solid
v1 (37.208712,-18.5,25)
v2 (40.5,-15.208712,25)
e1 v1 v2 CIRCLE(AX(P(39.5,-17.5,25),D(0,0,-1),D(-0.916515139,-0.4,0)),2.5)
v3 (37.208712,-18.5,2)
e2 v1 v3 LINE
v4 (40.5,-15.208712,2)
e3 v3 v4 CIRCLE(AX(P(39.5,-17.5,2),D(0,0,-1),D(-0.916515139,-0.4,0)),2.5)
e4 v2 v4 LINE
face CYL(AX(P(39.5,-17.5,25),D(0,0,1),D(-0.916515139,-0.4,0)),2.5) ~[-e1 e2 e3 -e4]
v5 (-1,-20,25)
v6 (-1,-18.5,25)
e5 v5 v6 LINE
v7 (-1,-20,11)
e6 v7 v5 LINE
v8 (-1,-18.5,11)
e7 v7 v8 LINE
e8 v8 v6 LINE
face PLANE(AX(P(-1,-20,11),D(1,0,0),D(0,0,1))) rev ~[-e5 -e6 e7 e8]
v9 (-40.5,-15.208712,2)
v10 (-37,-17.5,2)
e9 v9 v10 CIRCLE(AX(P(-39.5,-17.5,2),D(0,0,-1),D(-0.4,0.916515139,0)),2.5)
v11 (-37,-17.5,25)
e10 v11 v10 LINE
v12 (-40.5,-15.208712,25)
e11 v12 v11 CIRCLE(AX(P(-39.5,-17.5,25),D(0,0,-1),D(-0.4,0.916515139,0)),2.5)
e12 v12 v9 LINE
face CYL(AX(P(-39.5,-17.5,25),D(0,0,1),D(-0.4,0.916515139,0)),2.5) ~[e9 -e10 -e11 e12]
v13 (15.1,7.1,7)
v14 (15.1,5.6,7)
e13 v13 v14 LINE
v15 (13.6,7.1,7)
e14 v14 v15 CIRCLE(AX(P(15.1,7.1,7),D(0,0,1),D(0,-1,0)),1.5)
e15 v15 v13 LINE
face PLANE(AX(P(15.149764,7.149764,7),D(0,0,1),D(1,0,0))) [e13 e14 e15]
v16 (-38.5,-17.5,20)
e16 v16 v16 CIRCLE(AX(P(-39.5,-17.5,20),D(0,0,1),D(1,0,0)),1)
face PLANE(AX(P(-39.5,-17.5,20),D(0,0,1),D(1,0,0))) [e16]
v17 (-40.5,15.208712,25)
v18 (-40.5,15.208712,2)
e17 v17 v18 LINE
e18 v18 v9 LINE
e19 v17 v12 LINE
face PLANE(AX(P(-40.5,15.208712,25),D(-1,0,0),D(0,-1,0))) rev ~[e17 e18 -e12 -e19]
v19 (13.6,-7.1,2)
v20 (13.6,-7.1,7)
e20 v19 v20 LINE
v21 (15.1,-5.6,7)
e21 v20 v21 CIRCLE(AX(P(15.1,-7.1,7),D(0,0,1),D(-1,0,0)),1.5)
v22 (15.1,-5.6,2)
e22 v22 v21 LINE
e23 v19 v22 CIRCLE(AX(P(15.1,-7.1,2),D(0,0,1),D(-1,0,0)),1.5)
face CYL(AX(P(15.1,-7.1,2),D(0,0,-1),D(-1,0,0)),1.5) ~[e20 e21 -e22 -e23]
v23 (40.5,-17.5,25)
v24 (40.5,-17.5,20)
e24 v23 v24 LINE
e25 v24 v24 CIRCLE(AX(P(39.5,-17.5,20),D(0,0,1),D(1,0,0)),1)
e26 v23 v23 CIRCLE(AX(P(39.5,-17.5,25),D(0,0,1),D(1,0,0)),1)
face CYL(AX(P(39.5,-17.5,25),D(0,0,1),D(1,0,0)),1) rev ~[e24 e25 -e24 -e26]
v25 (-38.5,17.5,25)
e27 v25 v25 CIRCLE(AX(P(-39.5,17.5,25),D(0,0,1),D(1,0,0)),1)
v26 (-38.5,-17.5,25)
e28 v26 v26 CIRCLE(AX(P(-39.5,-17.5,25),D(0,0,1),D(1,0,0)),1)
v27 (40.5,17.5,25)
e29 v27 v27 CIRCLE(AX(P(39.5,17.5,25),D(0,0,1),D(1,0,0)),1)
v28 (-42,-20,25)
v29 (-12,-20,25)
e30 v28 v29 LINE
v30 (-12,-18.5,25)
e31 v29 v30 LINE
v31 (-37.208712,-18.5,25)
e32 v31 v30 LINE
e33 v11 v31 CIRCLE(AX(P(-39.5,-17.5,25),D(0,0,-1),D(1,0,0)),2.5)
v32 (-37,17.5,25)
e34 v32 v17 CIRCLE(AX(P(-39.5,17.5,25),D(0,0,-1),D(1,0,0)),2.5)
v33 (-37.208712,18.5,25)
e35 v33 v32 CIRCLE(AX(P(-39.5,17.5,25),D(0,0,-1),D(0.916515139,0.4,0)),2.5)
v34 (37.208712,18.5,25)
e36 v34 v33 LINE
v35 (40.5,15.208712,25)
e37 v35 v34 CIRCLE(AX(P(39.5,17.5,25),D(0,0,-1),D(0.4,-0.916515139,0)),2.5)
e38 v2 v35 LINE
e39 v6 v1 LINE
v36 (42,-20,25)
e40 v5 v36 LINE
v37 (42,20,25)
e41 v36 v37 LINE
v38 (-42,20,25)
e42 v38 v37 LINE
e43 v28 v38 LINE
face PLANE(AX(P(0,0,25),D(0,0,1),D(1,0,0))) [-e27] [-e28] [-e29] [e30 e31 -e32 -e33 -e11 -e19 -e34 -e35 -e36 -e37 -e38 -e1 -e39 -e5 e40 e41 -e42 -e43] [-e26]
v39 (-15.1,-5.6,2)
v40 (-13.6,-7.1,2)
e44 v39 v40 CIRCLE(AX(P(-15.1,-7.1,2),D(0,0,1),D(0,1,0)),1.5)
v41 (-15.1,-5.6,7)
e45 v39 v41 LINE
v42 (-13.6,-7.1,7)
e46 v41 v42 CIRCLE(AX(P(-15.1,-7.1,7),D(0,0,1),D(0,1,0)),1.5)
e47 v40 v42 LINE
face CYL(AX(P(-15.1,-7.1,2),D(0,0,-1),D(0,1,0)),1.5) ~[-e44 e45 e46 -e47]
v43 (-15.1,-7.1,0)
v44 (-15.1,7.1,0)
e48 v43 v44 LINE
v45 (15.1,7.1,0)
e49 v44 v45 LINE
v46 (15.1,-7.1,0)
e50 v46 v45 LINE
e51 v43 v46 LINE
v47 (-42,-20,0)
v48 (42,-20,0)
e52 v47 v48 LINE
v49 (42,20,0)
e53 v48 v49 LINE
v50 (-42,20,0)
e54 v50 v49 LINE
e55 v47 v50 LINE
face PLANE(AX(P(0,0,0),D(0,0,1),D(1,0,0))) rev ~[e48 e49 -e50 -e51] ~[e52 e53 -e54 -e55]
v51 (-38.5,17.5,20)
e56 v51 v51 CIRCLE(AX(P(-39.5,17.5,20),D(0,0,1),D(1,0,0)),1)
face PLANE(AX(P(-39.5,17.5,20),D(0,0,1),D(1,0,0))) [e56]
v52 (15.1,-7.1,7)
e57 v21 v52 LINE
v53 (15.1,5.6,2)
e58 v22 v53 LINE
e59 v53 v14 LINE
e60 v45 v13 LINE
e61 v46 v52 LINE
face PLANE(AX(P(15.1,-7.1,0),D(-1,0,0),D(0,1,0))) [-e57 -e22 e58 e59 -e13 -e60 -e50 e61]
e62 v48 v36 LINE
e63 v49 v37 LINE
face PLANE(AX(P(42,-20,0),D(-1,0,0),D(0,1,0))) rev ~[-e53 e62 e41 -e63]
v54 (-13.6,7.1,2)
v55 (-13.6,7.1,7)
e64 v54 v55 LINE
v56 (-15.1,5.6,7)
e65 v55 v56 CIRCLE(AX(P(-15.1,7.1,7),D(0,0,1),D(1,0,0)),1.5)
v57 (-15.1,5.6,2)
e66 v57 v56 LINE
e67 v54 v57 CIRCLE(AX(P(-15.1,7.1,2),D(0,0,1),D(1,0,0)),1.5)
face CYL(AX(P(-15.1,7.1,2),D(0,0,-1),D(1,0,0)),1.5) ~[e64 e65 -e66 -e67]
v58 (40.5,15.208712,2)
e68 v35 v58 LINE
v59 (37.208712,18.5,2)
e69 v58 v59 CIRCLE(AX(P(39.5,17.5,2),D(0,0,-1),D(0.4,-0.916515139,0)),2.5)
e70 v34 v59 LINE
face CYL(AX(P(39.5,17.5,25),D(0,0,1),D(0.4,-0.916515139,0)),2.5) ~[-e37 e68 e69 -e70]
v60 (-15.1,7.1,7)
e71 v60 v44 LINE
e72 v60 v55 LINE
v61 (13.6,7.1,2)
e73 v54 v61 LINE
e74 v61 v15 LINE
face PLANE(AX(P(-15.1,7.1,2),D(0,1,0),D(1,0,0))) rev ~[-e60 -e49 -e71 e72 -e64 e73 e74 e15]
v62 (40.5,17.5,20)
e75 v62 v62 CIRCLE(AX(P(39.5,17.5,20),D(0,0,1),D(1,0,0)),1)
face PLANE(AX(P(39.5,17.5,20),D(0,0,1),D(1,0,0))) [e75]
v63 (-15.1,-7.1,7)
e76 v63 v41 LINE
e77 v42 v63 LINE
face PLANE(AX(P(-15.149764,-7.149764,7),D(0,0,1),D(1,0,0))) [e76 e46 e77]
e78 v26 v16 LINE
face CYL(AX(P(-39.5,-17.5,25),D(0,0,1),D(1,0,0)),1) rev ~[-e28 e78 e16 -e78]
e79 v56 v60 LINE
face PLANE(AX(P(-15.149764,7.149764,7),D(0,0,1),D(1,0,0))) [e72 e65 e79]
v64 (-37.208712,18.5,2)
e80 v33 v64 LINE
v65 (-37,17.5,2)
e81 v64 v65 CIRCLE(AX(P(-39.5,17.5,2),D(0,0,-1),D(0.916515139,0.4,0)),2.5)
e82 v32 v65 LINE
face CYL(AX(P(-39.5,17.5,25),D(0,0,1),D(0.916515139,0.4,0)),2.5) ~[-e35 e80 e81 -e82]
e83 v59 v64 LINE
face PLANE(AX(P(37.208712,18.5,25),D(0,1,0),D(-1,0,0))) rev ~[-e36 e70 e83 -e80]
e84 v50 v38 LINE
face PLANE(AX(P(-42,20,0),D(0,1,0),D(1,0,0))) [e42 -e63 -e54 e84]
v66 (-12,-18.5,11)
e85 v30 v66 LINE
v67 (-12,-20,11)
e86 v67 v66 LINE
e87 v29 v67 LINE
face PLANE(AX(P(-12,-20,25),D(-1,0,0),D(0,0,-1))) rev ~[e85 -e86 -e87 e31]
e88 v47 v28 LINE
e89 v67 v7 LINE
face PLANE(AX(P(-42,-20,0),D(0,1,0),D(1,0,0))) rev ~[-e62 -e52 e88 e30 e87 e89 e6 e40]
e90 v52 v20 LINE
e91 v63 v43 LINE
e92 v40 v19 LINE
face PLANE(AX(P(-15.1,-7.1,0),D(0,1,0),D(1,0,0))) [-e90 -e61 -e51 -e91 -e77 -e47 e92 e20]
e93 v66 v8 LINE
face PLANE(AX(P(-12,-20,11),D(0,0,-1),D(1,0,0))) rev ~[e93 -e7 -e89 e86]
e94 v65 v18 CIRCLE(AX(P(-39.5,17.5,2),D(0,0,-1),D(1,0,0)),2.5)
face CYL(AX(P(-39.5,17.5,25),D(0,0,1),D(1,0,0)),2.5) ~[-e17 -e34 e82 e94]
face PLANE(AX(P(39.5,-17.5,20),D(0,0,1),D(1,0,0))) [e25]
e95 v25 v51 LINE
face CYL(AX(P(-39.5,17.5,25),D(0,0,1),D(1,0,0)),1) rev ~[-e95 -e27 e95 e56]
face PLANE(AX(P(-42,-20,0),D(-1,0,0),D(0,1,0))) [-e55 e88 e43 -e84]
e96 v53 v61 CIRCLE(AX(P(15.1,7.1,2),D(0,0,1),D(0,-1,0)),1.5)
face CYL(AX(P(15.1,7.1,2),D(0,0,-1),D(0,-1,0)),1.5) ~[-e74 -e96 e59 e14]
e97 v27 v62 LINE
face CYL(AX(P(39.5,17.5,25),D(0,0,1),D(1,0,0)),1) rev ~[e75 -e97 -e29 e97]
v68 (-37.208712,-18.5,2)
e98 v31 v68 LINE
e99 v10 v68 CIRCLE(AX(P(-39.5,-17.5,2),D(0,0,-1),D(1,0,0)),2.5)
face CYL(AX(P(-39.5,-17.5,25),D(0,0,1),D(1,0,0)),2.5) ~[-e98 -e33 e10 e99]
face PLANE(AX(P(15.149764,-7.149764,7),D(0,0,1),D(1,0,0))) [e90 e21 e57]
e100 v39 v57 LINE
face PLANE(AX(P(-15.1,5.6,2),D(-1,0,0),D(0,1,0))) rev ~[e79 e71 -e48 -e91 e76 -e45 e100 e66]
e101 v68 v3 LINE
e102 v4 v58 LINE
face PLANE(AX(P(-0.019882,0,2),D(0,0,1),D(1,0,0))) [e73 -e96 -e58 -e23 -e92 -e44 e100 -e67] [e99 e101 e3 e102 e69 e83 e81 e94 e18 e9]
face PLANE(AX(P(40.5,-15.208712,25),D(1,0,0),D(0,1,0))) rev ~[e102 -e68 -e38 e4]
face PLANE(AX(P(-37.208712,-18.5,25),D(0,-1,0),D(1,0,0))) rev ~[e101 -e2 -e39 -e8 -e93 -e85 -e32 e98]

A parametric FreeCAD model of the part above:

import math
import FreeCAD as App
import Part
import Sketcher
Q = App.Units.Quantity

doc = App.newDocument("Part")
body = doc.addObject("PartDesign::Body", "Body")

sketch1 = body.newObject("Sketcher::SketchObject", "Sketch")
sketch1.AttachmentSupport = (doc.getObject("XY_Plane"), [""])
sketch1.MapMode = "FlatFace"
sketch1.addGeometry(Part.LineSegment(App.Vector(-42, 20, 0), App.Vector(-42, -20, 0)), False)
sketch1.addGeometry(Part.LineSegment(App.Vector(-42, -20, 0), App.Vector(42, -20, 0)), False)
sketch1.addGeometry(Part.LineSegment(App.Vector(42, -20, 0), App.Vector(42, 20, 0)), False)
sketch1.addGeometry(Part.LineSegment(App.Vector(42, 20, 0), App.Vector(-42, 20, 0)), False)
sketch1.addGeometry(Part.LineSegment(App.Vector(15, -7, 0), App.Vector(-15, -7, 0)), False)
sketch1.addGeometry(Part.LineSegment(App.Vector(-15, -7, 0), App.Vector(-15, 7, 0)), False)
sketch1.addGeometry(Part.LineSegment(App.Vector(-15, 7, 0), App.Vector(15, 7, 0)), False)
sketch1.addGeometry(Part.LineSegment(App.Vector(15, 7, 0), App.Vector(15, -7, 0)), False)
sketch1.addConstraint(Sketcher.Constraint("Coincident", 0, 2, 1, 1))
sketch1.addConstraint(Sketcher.Constraint("Coincident", 1, 2, 2, 1))
sketch1.addConstraint(Sketcher.Constraint("Coincident", 2, 2, 3, 1))
sketch1.addConstraint(Sketcher.Constraint("Coincident", 3, 2, 0, 1))
sketch1.addConstraint(Sketcher.Constraint("Coincident", 4, 2, 5, 1))
sketch1.addConstraint(Sketcher.Constraint("Coincident", 5, 2, 6, 1))
sketch1.addConstraint(Sketcher.Constraint("Coincident", 6, 2, 7, 1))
sketch1.addConstraint(Sketcher.Constraint("Coincident", 7, 2, 4, 1))
sketch1.addConstraint(Sketcher.Constraint("Vertical", 0))
sketch1.addConstraint(Sketcher.Constraint("Horizontal", 1))
sketch1.addConstraint(Sketcher.Constraint("Vertical", 2))
sketch1.addConstraint(Sketcher.Constraint("Horizontal", 3))
sketch1.addConstraint(Sketcher.Constraint("Horizontal", 4))
sketch1.addConstraint(Sketcher.Constraint("Vertical", 5))
sketch1.addConstraint(Sketcher.Constraint("Horizontal", 6))
sketch1.addConstraint(Sketcher.Constraint("Vertical", 7))
sketch1.addConstraint(Sketcher.Constraint("Symmetric", 0, 2, 2, 2, -1, 1))
sketch1.addConstraint(Sketcher.Constraint("Symmetric", 4, 2, 6, 2, -1, 1))
sketch1.addConstraint(Sketcher.Constraint("DistanceX", 1, 1, 1, 2, Q("84 mm")))
sketch1.addConstraint(Sketcher.Constraint("DistanceY", 0, 2, 0, 1, Q("40 mm")))
sketch1.addConstraint(Sketcher.Constraint("DistanceX", 4, 2, 4, 1, Q("30.2 mm")))
sketch1.addConstraint(Sketcher.Constraint("DistanceY", 5, 1, 5, 2, Q("14.2 mm")))
pad1 = body.newObject("PartDesign::Pad", "Pad")
pad1.Profile = sketch1
pad1.Length = 25

sketch2 = body.newObject("Sketcher::SketchObject", "Sketch001")
sketch2.AttachmentSupport = (doc.getObject("XY_Plane"), [""])
sketch2.MapMode = "FlatFace"
sketch2.AttachmentOffset = App.Placement(App.Vector(0, 0, 25), App.Rotation())
sketch2.addGeometry(Part.LineSegment(App.Vector(-37.2, -18.5, 0), App.Vector(37.2, -18.5, 0)), False)
sketch2.addGeometry(Part.ArcOfCircle(Part.Circle(App.Vector(39.5, -17.5, 0), App.Vector(0, 0, 1), 2.5), math.radians(66), math.radians(204)), False)
sketch2.addGeometry(Part.LineSegment(App.Vector(40.5, -15.2, 0), App.Vector(40.5, 15.2, 0)), False)
sketch2.addGeometry(Part.ArcOfCircle(Part.Circle(App.Vector(39.5, 17.5, 0), App.Vector(0, 0, 1), 2.5), math.radians(156), math.radians(294)), False)
sketch2.addGeometry(Part.LineSegment(App.Vector(37.2, 18.5, 0), App.Vector(-37.2, 18.5, 0)), False)
sketch2.addGeometry(Part.ArcOfCircle(Part.Circle(App.Vector(-39.5, 17.5, 0), App.Vector(0, 0, 1), 2.5), math.radians(0), math.radians(24)), False)
sketch2.addGeometry(Part.ArcOfCircle(Part.Circle(App.Vector(-39.5, 17.5, 0), App.Vector(0, 0, 1), 2.5), math.radians(-114), math.radians(0)), False)
sketch2.addGeometry(Part.LineSegment(App.Vector(-40.5, 15.2, 0), App.Vector(-40.5, -15.2, 0)), False)
sketch2.addGeometry(Part.ArcOfCircle(Part.Circle(App.Vector(-39.5, -17.5, 0), App.Vector(0, 0, 1), 2.5), math.radians(0), math.radians(114)), False)
sketch2.addGeometry(Part.ArcOfCircle(Part.Circle(App.Vector(-39.5, -17.5, 0), App.Vector(0, 0, 1), 2.5), math.radians(-24), math.radians(0)), False)
sketch2.addGeometry(Part.LineSegment(App.Vector(15.1, -7.1, 0), App.Vector(-15.1, -7.1, 0)), False)
sketch2.addGeometry(Part.LineSegment(App.Vector(-15.1, -7.1, 0), App.Vector(-15.1, 7.1, 0)), False)
sketch2.addGeometry(Part.LineSegment(App.Vector(-15.1, 7.1, 0), App.Vector(15.1, 7.1, 0)), False)
sketch2.addGeometry(Part.LineSegment(App.Vector(15.1, 7.1, 0), App.Vector(15.1, -7.1, 0)), False)
sketch2.addConstraint(Sketcher.Constraint("Coincident", 0, 2, 1, 2))
sketch2.addConstraint(Sketcher.Constraint("Coincident", 1, 1, 2, 1))
sketch2.addConstraint(Sketcher.Constraint("Coincident", 2, 2, 3, 2))
sketch2.addConstraint(Sketcher.Constraint("Coincident", 3, 1, 4, 1))
sketch2.addConstraint(Sketcher.Constraint("Coincident", 4, 2, 5, 2))
sketch2.addConstraint(Sketcher.Constraint("Tangent", 5, 1, 6, 2))
sketch2.addConstraint(Sketcher.Constraint("Coincident", 6, 1, 7, 1))
sketch2.addConstraint(Sketcher.Constraint("Coincident", 7, 2, 8, 2))
sketch2.addConstraint(Sketcher.Constraint("Tangent", 8, 1, 9, 2))
sketch2.addConstraint(Sketcher.Constraint("Coincident", 9, 1, 0, 1))
sketch2.addConstraint(Sketcher.Constraint("Coincident", 10, 2, 11, 1))
sketch2.addConstraint(Sketcher.Constraint("Coincident", 11, 2, 12, 1))
sketch2.addConstraint(Sketcher.Constraint("Coincident", 12, 2, 13, 1))
sketch2.addConstraint(Sketcher.Constraint("Coincident", 13, 2, 10, 1))
sketch2.addConstraint(Sketcher.Constraint("Horizontal", 0))
sketch2.addConstraint(Sketcher.Constraint("Vertical", 2))
sketch2.addConstraint(Sketcher.Constraint("Horizontal", 4))
sketch2.addConstraint(Sketcher.Constraint("Vertical", 7))
sketch2.addConstraint(Sketcher.Constraint("Horizontal", 10))
sketch2.addConstraint(Sketcher.Constraint("Vertical", 11))
sketch2.addConstraint(Sketcher.Constraint("Horizontal", 12))
sketch2.addConstraint(Sketcher.Constraint("Vertical", 13))
sketch2.addConstraint(Sketcher.Constraint("Equal", 1, 3))
sketch2.addConstraint(Sketcher.Constraint("Equal", 3, 5))
sketch2.addConstraint(Sketcher.Constraint("Equal", 5, 6))
sketch2.addConstraint(Sketcher.Constraint("Equal", 6, 8))
sketch2.addConstraint(Sketcher.Constraint("Equal", 8, 9))
sketch2.addConstraint(Sketcher.Constraint("Symmetric", 1, 3, 5, 3, -1, 1))
sketch2.addConstraint(Sketcher.Constraint("Symmetric", 3, 3, 8, 3, -1, 1))
sketch2.addConstraint(Sketcher.Constraint("Symmetric", 10, 2, 12, 2, -1, 1))
sketch2.addConstraint(Sketcher.Constraint("Symmetric", 3, 3, 5, 3, -2))
sketch2.addConstraint(Sketcher.Constraint("Horizontal", 6, 3, 5, 1))
sketch2.addConstraint(Sketcher.Constraint("Horizontal", 2, 2, 6, 1))
sketch2.addConstraint(Sketcher.Constraint("Horizontal", 9, 3, 8, 1))
sketch2.addConstraint(Sketcher.Constraint("Vertical", 0, 2, 3, 1))
sketch2.addConstraint(Sketcher.Constraint("Radius", 1, Q("2.5 mm")))
sketch2.addConstraint(Sketcher.Constraint("DistanceX", 10, 2, 10, 1, Q("30.2 mm")))
sketch2.addConstraint(Sketcher.Constraint("DistanceY", 11, 1, 11, 2, Q("14.2 mm")))
sketch2.addConstraint(Sketcher.Constraint("DistanceX", 5, 1, -1, 1, Q("37 mm")))
sketch2.addConstraint(Sketcher.Constraint("DistanceY", 1, 3, 3, 3, Q("35 mm")))
sketch2.addConstraint(Sketcher.Constraint("DistanceY", 0, 2, 1, 3, Q("1 mm")))
sketch2.addConstraint(Sketcher.Constraint("DistanceX", 1, 3, 1, 1, Q("1 mm")))
pocket1 = body.newObject("PartDesign::Pocket", "Pocket")
pocket1.Profile = sketch2
pocket1.Length = 23

sketch3 = body.newObject("Sketcher::SketchObject", "Sketch002")
sketch3.AttachmentSupport = (doc.getObject("XY_Plane"), [""])
sketch3.MapMode = "FlatFace"
sketch3.AttachmentOffset = App.Placement(App.Vector(0, 0, 2), App.Rotation())
sketch3.addGeometry(Part.LineSegment(App.Vector(-15.1, 7.1, 0), App.Vector(-13.6, 7.1, 0)), False)
sketch3.addGeometry(Part.ArcOfCircle(Part.Circle(App.Vector(-15.1, 7.1, 0), App.Vector(0, 0, 1), 1.5), math.radians(0), math.radians(270)), False)
sketch3.addGeometry(Part.LineSegment(App.Vector(-15.1, 5.6, 0), App.Vector(-15.1, 7.1, 0)), False)
sketch3.addGeometry(Part.LineSegment(App.Vector(-15.1, -7.1, 0), App.Vector(-15.1, -5.6, 0)), False)
sketch3.addGeometry(Part.ArcOfCircle(Part.Circle(App.Vector(-15.1, -7.1, 0), App.Vector(0, 0, 1), 1.5), math.radians(90), math.radians(360)), False)
sketch3.addGeometry(Part.LineSegment(App.Vector(-13.6, -7.1, 0), App.Vector(-15.1, -7.1, 0)), False)
sketch3.addGeometry(Part.ArcOfCircle(Part.Circle(App.Vector(15.1, -7.1, 0), App.Vector(0, 0, 1), 1.5), math.radians(180), math.radians(450)), False)
sketch3.addGeometry(Part.LineSegment(App.Vector(15.1, -5.6, 0), App.Vector(15.1, -7.1, 0)), False)
sketch3.addGeometry(Part.LineSegment(App.Vector(15.1, -7.1, 0), App.Vector(13.6, -7.1, 0)), False)
sketch3.addGeometry(Part.ArcOfCircle(Part.Circle(App.Vector(15.1, 7.1, 0), App.Vector(0, 0, 1), 1.5), math.radians(-90), math.radians(180)), False)
sketch3.addGeometry(Part.LineSegment(App.Vector(13.6, 7.1, 0), App.Vector(15.1, 7.1, 0)), False)
sketch3.addGeometry(Part.LineSegment(App.Vector(15.1, 7.1, 0), App.Vector(15.1, 5.6, 0)), False)
sketch3.addConstraint(Sketcher.Constraint("Coincident", 0, 2, 1, 1))
sketch3.addConstraint(Sketcher.Constraint("Coincident", 1, 2, 2, 1))
sketch3.addConstraint(Sketcher.Constraint("Coincident", 2, 2, 0, 1))
sketch3.addConstraint(Sketcher.Constraint("Coincident", 3, 2, 4, 1))
sketch3.addConstraint(Sketcher.Constraint("Coincident", 4, 2, 5, 1))
sketch3.addConstraint(Sketcher.Constraint("Coincident", 5, 2, 3, 1))
sketch3.addConstraint(Sketcher.Constraint("Coincident", 6, 2, 7, 1))
sketch3.addConstraint(Sketcher.Constraint("Coincident", 7, 2, 8, 1))
sketch3.addConstraint(Sketcher.Constraint("Coincident", 8, 2, 6, 1))
sketch3.addConstraint(Sketcher.Constraint("Coincident", 9, 2, 10, 1))
sketch3.addConstraint(Sketcher.Constraint("Coincident", 10, 2, 11, 1))
sketch3.addConstraint(Sketcher.Constraint("Coincident", 11, 2, 9, 1))
sketch3.addConstraint(Sketcher.Constraint("Horizontal", 0))
sketch3.addConstraint(Sketcher.Constraint("Vertical", 2))
sketch3.addConstraint(Sketcher.Constraint("Vertical", 3))
sketch3.addConstraint(Sketcher.Constraint("Horizontal", 5))
sketch3.addConstraint(Sketcher.Constraint("Vertical", 7))
sketch3.addConstraint(Sketcher.Constraint("Horizontal", 8))
sketch3.addConstraint(Sketcher.Constraint("Horizontal", 10))
sketch3.addConstraint(Sketcher.Constraint("Vertical", 11))
sketch3.addConstraint(Sketcher.Constraint("Coincident", 2, 2, 1, 3))
sketch3.addConstraint(Sketcher.Constraint("Coincident", 5, 2, 4, 3))
sketch3.addConstraint(Sketcher.Constraint("Coincident", 7, 2, 6, 3))
sketch3.addConstraint(Sketcher.Constraint("Coincident", 10, 2, 9, 3))
sketch3.addConstraint(Sketcher.Constraint("Equal", 1, 4))
sketch3.addConstraint(Sketcher.Constraint("Equal", 4, 6))
sketch3.addConstraint(Sketcher.Constraint("Equal", 6, 9))
sketch3.addConstraint(Sketcher.Constraint("Symmetric", 1, 3, 6, 3, -1, 1))
sketch3.addConstraint(Sketcher.Constraint("Symmetric", 4, 3, 9, 3, -1, 1))
sketch3.addConstraint(Sketcher.Constraint("Symmetric", 4, 3, 6, 3, -2))
sketch3.addConstraint(Sketcher.Constraint("Radius", 1, Q("1.5 mm")))
sketch3.addConstraint(Sketcher.Constraint("DistanceX", 1, 3, -1, 1, Q("15.1 mm")))
sketch3.addConstraint(Sketcher.Constraint("DistanceY", -1, 1, 1, 3, Q("7.1 mm")))
pad2 = body.newObject("PartDesign::Pad", "Pad001")
pad2.Profile = sketch3
pad2.Length = 5

sketch4 = body.newObject("Sketcher::SketchObject", "Sketch003")
sketch4.AttachmentSupport = (doc.getObject("XY_Plane"), [""])
sketch4.MapMode = "FlatFace"
sketch4.AttachmentOffset = App.Placement(App.Vector(0, 0, 25), App.Rotation())
sketch4.addGeometry(Part.Circle(App.Vector(-39.5, 17.5, 0), App.Vector(0, 0, 1), 1), False)
sketch4.addGeometry(Part.Circle(App.Vector(39.5, 17.5, 0), App.Vector(0, 0, 1), 1), False)
sketch4.addGeometry(Part.Circle(App.Vector(39.5, -17.5, 0), App.Vector(0, 0, 1), 1), False)
sketch4.addGeometry(Part.Circle(App.Vector(-39.5, -17.5, 0), App.Vector(0, 0, 1), 1), False)
sketch4.addConstraint(Sketcher.Constraint("Equal", 0, 1))
sketch4.addConstraint(Sketcher.Constraint("Equal", 1, 2))
sketch4.addConstraint(Sketcher.Constraint("Equal", 2, 3))
sketch4.addConstraint(Sketcher.Constraint("Symmetric", 0, 3, 2, 3, -1, 1))
sketch4.addConstraint(Sketcher.Constraint("Symmetric", 1, 3, 3, 3, -1, 1))
sketch4.addConstraint(Sketcher.Constraint("Symmetric", 0, 3, 1, 3, -2))
sketch4.addConstraint(Sketcher.Constraint("Diameter", 0, Q("2 mm")))
sketch4.addConstraint(Sketcher.Constraint("DistanceX", 0, 3, 1, 3, Q("79 mm")))
sketch4.addConstraint(Sketcher.Constraint("DistanceY", 2, 3, 1, 3, Q("35 mm")))
pocket2 = body.newObject("PartDesign::Pocket", "Pocket001")
pocket2.Profile = sketch4
pocket2.Length = 5

sketch5 = body.newObject("Sketcher::SketchObject", "Sketch004")
sketch5.AttachmentSupport = (doc.getObject("XZ_Plane"), [""])
sketch5.MapMode = "FlatFace"
sketch5.AttachmentOffset = App.Placement(App.Vector(0, 0, 20), App.Rotation())
sketch5.addGeometry(Part.LineSegment(App.Vector(-12, 11, 0), App.Vector(-1, 11, 0)), False)
sketch5.addGeometry(Part.LineSegment(App.Vector(-1, 11, 0), App.Vector(-1, 25, 0)), False)
sketch5.addGeometry(Part.LineSegment(App.Vector(-1, 25, 0), App.Vector(-12, 25, 0)), False)
sketch5.addGeometry(Part.LineSegment(App.Vector(-12, 25, 0), App.Vector(-12, 11, 0)), False)
sketch5.addConstraint(Sketcher.Constraint("Coincident", 0, 2, 1, 1))
sketch5.addConstraint(Sketcher.Constraint("Coincident", 1, 2, 2, 1))
sketch5.addConstraint(Sketcher.Constraint("Coincident", 2, 2, 3, 1))
sketch5.addConstraint(Sketcher.Constraint("Coincident", 3, 2, 0, 1))
sketch5.addConstraint(Sketcher.Constraint("Horizontal", 0))
sketch5.addConstraint(Sketcher.Constraint("Vertical", 1))
sketch5.addConstraint(Sketcher.Constraint("Horizontal", 2))
sketch5.addConstraint(Sketcher.Constraint("Vertical", 3))
sketch5.addConstraint(Sketcher.Constraint("DistanceX", 0, 1, 0, 2, Q("11 mm")))
sketch5.addConstraint(Sketcher.Constraint("DistanceY", 1, 1, 1, 2, Q("14 mm")))
sketch5.addConstraint(Sketcher.Constraint("DistanceX", 0, 2, -1, 1, Q("1 mm")))
sketch5.addConstraint(Sketcher.Constraint("DistanceY", -1, 1, 0, 2, Q("11 mm")))
pocket3 = body.newObject("PartDesign::Pocket", "Pocket002")
pocket3.Profile = sketch5
pocket3.Length = 1.5

doc.recompute()
